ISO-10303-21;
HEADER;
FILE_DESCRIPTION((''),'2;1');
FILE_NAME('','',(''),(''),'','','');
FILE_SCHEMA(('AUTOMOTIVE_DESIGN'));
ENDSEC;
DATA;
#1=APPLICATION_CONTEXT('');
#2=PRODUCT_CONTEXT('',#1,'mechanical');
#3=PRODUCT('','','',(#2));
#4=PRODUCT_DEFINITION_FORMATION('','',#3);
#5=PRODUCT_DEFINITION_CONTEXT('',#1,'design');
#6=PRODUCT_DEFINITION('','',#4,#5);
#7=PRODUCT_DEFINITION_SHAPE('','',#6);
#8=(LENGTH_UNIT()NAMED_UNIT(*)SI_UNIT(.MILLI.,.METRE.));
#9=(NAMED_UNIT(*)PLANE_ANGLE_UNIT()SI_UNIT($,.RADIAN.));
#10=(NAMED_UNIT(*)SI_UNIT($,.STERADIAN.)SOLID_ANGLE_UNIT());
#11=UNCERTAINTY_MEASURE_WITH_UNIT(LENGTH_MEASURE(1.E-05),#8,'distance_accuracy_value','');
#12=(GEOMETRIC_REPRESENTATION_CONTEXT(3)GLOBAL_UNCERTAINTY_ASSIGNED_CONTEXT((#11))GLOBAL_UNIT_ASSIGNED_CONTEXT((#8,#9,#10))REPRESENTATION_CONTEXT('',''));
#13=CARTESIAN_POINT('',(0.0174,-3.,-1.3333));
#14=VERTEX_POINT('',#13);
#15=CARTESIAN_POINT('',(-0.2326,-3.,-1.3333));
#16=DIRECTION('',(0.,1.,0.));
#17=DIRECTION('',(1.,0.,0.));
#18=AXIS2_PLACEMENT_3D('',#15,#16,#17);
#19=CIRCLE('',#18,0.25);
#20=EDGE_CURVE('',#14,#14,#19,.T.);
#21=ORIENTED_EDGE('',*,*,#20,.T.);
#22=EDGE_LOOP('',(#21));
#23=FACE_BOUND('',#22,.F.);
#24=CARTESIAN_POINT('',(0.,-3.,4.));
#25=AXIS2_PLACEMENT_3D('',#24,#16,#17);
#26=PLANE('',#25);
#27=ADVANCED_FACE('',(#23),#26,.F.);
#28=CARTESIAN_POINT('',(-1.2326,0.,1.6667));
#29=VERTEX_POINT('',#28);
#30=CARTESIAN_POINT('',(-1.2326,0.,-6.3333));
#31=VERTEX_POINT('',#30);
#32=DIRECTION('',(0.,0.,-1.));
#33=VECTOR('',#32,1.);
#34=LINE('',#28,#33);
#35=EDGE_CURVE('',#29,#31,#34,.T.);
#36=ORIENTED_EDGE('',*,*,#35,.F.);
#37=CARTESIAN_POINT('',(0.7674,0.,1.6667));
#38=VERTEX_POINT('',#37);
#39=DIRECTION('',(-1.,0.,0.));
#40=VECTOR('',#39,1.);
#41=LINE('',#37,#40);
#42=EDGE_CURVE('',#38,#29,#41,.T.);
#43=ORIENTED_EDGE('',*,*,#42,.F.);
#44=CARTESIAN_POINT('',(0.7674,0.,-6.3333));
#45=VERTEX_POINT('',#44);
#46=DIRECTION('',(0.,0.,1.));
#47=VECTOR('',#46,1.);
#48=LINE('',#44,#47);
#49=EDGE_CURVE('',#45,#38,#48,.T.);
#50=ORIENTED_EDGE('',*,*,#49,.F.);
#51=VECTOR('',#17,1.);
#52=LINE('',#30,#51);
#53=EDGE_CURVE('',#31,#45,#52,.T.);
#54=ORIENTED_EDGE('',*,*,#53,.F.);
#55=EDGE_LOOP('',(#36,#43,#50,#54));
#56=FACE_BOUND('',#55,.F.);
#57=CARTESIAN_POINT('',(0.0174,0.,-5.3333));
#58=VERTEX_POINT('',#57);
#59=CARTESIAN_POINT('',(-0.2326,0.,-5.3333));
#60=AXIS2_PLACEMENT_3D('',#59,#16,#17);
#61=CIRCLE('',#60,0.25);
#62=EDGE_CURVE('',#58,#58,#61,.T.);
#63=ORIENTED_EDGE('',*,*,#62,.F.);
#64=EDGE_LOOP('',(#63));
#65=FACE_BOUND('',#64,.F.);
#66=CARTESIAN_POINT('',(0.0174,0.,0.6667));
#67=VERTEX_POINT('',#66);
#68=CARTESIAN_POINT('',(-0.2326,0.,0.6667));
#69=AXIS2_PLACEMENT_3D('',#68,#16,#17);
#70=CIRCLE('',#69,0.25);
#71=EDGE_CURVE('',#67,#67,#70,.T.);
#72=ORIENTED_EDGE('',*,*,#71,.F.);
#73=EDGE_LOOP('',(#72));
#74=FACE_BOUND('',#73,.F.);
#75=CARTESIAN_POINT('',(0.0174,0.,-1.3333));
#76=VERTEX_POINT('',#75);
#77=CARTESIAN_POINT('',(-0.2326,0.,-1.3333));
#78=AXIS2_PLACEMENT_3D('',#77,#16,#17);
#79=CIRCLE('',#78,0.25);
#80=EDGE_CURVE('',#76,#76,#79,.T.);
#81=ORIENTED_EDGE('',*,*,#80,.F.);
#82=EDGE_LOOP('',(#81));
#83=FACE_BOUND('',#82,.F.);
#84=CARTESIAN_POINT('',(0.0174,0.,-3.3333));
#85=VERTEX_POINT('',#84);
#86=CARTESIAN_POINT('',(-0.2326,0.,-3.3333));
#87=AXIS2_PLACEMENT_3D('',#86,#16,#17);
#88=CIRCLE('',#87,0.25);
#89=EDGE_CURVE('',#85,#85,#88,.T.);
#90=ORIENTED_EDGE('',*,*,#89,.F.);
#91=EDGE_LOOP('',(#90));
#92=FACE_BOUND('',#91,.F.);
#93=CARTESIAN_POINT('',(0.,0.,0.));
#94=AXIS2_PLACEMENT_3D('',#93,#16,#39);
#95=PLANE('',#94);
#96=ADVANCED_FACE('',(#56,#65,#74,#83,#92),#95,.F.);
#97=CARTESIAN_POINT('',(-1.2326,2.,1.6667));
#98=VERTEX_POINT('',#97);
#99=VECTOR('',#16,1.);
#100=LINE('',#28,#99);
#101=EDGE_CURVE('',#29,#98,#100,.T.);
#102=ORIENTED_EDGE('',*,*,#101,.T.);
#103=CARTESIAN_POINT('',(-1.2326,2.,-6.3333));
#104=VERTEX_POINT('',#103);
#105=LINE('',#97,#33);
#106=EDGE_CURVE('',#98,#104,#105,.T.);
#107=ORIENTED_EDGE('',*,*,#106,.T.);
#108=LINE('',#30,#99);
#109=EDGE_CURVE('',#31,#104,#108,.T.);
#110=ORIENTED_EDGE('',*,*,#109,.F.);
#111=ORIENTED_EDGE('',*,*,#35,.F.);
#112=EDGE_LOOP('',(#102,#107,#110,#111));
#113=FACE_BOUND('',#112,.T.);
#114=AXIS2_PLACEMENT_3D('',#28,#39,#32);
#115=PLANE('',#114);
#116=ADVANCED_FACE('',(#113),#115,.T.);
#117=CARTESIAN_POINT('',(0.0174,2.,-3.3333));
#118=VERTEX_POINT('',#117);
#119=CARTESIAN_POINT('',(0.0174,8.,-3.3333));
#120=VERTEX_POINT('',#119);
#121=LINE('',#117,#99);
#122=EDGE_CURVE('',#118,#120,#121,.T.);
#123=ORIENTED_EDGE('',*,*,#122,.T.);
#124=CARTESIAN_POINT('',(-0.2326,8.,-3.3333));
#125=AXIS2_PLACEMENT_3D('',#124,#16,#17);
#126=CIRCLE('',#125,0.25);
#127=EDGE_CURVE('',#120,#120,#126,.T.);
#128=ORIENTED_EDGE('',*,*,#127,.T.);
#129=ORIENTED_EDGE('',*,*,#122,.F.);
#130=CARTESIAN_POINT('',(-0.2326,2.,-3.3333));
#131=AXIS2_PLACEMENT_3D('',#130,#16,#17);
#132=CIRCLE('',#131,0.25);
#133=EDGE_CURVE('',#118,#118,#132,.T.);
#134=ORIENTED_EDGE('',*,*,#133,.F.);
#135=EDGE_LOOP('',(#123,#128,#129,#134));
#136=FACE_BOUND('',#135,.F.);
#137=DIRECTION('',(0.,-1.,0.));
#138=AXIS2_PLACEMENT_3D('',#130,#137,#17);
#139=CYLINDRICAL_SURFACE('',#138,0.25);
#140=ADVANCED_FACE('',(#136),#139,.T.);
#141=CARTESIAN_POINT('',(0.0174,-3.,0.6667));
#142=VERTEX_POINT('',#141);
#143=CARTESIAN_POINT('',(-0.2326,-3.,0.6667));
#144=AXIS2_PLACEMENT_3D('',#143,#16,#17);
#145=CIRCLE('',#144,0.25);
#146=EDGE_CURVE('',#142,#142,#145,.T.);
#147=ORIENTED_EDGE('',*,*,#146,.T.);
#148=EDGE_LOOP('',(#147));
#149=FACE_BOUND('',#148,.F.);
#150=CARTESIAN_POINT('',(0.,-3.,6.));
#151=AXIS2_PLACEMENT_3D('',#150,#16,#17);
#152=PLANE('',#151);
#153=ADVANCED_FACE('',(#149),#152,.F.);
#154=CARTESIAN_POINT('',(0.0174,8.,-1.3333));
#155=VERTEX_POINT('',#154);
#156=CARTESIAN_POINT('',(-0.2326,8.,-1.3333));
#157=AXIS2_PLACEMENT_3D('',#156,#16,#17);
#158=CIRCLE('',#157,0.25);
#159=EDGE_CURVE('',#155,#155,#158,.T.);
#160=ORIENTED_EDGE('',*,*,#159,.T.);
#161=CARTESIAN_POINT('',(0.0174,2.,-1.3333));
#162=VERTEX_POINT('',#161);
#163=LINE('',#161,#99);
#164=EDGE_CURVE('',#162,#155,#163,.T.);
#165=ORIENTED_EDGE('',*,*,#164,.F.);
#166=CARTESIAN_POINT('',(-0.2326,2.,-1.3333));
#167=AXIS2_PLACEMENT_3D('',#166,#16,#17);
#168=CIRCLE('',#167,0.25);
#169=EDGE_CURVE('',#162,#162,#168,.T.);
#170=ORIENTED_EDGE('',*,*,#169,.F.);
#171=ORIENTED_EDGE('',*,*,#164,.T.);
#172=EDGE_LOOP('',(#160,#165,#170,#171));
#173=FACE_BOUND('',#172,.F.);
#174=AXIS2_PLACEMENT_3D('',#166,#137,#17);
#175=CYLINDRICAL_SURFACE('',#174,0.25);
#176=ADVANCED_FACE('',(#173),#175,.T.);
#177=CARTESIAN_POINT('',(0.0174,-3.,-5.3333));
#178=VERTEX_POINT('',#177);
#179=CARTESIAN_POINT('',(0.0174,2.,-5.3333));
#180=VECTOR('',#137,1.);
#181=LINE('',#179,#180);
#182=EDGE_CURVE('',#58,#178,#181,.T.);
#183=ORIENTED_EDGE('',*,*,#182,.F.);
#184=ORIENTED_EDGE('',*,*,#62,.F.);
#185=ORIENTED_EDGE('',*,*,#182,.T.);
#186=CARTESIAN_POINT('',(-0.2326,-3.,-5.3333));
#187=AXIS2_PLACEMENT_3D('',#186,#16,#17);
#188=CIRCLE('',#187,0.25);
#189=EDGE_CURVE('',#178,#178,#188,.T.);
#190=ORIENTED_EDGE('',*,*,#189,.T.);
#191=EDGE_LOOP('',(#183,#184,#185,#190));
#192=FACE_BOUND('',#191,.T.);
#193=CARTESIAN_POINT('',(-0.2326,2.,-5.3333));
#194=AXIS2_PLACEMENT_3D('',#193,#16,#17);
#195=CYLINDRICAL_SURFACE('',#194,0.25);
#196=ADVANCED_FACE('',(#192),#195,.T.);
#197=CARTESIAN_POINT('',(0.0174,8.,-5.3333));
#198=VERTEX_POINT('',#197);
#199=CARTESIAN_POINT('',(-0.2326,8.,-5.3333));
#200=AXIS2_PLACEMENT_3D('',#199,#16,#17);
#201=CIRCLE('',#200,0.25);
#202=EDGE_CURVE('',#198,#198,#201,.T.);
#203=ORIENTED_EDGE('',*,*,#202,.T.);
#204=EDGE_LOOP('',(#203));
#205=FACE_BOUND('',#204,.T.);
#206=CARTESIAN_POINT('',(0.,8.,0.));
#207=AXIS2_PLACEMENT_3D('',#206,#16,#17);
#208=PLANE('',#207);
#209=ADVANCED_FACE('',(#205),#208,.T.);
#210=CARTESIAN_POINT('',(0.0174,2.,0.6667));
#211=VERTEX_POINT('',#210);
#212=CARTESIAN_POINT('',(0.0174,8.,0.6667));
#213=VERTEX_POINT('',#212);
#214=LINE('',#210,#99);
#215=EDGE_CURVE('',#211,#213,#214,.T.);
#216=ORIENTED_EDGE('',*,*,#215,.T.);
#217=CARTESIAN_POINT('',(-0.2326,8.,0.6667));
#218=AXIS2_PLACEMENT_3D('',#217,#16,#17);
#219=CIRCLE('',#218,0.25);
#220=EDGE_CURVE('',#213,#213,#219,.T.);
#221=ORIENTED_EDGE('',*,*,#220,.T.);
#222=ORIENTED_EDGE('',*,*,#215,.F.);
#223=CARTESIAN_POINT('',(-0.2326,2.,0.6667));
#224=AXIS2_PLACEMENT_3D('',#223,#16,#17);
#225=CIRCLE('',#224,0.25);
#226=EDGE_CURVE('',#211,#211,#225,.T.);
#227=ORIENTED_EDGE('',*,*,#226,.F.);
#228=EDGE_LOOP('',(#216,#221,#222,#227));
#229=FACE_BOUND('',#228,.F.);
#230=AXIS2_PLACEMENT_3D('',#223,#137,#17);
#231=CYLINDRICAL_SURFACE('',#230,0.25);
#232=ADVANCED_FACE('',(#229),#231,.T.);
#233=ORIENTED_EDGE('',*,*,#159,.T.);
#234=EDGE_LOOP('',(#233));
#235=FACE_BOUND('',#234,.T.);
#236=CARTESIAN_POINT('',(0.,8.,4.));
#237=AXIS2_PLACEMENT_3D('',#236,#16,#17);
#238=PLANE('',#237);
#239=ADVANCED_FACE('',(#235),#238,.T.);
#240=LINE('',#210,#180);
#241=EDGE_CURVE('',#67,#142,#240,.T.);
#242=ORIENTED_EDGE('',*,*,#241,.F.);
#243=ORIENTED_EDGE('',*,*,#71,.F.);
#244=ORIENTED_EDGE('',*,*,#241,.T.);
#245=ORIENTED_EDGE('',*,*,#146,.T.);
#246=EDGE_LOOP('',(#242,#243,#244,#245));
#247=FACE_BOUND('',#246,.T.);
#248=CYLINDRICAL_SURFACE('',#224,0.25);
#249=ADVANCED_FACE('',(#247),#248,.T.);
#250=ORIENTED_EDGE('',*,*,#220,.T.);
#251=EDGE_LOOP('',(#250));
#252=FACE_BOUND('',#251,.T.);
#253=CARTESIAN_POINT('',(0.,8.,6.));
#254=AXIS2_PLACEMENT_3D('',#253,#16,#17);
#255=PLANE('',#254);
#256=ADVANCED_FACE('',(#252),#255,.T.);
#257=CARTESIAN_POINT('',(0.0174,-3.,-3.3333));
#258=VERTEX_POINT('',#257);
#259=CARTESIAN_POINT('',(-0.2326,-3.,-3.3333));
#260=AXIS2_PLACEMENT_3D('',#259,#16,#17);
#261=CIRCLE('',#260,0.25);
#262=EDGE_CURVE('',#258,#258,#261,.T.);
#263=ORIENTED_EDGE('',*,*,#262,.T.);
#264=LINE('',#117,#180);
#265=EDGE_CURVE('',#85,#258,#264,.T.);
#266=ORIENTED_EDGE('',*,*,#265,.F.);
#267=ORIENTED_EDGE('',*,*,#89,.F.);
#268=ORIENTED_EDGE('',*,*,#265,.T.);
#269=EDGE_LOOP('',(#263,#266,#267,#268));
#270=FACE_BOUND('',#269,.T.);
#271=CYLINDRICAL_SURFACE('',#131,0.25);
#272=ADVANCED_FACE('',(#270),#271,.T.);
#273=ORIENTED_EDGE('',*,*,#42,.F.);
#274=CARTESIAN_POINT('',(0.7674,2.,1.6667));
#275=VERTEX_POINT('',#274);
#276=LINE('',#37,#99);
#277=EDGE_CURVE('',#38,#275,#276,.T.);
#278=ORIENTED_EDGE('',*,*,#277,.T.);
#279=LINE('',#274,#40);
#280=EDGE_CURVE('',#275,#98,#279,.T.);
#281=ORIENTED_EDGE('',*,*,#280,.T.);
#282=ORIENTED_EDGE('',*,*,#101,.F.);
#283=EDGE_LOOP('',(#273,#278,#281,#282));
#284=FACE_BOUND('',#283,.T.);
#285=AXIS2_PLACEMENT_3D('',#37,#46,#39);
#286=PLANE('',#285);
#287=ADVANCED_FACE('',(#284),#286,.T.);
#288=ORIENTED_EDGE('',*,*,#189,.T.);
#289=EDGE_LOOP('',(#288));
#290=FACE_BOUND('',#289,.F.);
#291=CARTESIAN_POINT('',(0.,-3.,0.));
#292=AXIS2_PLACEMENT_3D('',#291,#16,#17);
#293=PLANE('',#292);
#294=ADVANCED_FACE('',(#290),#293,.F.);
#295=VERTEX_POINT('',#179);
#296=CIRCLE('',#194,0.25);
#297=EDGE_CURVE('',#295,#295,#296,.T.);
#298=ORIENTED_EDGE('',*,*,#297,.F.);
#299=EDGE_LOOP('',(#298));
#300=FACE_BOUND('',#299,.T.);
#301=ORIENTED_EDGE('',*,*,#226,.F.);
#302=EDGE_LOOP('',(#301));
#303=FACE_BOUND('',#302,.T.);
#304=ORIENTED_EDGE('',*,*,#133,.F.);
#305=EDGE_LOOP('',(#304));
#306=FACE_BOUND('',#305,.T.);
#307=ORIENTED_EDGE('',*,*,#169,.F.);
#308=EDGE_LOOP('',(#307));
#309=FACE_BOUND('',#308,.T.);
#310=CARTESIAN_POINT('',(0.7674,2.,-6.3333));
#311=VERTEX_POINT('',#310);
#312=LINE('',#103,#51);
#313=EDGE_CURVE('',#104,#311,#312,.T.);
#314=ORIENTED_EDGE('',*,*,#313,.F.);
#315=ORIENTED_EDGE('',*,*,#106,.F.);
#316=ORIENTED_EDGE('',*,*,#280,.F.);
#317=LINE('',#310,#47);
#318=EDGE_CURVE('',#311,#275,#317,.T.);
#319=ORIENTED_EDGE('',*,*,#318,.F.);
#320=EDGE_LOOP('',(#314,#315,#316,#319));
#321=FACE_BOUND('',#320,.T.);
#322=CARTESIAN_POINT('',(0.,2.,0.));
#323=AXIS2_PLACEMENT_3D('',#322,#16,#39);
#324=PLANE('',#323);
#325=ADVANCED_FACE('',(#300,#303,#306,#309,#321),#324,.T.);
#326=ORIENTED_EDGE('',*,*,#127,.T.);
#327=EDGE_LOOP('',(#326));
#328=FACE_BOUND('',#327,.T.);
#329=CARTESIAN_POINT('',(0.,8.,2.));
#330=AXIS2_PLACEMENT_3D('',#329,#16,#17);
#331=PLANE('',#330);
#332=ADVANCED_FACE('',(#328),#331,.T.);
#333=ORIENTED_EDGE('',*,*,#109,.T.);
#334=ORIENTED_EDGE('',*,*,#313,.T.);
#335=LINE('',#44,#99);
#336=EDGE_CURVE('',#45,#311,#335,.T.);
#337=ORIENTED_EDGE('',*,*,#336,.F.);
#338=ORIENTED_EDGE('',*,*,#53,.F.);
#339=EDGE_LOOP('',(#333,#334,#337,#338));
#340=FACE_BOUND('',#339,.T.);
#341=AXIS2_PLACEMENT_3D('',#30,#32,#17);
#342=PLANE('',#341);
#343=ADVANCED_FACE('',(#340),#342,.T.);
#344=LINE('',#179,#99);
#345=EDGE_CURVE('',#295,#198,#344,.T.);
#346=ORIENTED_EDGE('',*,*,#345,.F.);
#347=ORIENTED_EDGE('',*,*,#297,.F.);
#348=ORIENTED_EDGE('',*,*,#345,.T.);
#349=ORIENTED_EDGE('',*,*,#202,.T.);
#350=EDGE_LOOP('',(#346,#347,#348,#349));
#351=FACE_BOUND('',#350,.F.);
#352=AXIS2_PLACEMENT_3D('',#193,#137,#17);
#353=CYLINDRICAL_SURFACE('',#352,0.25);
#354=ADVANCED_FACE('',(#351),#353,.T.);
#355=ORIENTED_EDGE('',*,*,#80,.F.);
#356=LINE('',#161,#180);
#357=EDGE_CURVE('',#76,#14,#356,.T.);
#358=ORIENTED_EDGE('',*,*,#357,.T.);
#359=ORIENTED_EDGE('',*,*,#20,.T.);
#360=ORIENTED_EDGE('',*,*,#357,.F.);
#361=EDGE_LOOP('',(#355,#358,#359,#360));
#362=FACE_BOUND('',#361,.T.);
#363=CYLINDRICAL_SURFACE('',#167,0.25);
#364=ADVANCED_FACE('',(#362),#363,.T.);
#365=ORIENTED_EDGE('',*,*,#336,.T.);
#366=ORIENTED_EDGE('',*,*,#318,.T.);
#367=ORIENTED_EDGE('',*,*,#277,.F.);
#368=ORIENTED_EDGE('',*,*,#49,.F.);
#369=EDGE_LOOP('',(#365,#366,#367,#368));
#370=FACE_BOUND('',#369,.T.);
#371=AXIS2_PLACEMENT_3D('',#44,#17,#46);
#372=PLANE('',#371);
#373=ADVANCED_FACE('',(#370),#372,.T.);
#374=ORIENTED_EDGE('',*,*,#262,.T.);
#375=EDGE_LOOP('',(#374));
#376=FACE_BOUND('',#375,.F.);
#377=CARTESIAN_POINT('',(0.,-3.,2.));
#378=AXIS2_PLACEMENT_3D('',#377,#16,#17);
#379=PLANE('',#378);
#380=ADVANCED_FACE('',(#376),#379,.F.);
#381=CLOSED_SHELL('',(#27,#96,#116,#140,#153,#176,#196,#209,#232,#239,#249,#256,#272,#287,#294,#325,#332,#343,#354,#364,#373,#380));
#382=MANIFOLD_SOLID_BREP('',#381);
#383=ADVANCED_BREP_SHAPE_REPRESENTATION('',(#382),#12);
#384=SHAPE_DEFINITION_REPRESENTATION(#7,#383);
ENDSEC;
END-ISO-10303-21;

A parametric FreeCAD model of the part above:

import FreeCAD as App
import Part
import Sketcher


def add_polygon(sketch, points):
    """Adds a closed chain of lines whose ends are joined by coincident constraints."""
    first, n = sketch.GeometryCount, len(points)
    for a, b in zip(points, points[1:] + points[:1]):
        sketch.addGeometry(Part.LineSegment(App.Vector(*a, 0), App.Vector(*b, 0)), False)
    for i in range(n):
        sketch.addConstraint(Sketcher.Constraint("Coincident", first + i, 2, first + (i + 1) % n, 1))

doc = App.newDocument("Part")
body = doc.addObject("PartDesign::Body", "Body")

# Sketch on XZ plane
sketch1 = body.newObject("Sketcher::SketchObject", "Sketch")
sketch1.AttachmentSupport = (doc.getObject("XZ_Plane"), [""])
sketch1.MapMode = "FlatFace"
add_polygon(sketch1, [(-1.2, 1.7), (0.8, 1.7), (0.8, -6.3), (-1.2, -6.3)])  # lines 0-3
sketch1.addConstraint(Sketcher.Constraint("Horizontal", 0))
sketch1.addConstraint(Sketcher.Constraint("Vertical", 1))
sketch1.addConstraint(Sketcher.Constraint("Horizontal", 2))
sketch1.addConstraint(Sketcher.Constraint("Vertical", 3))
sketch1.addConstraint(Sketcher.Constraint("DistanceX", 0, 1, 0, 2, 2.0))
sketch1.addConstraint(Sketcher.Constraint("DistanceY", 1, 2, 1, 1, 8.0))
sketch1.addConstraint(Sketcher.Constraint("DistanceX", -1, 1, 0, 2, 0.7674))
sketch1.addConstraint(Sketcher.Constraint("DistanceY", -1, 1, 0, 2, 1.6667))
pad1 = body.newObject("PartDesign::Pad", "Pad")
pad1.Profile = sketch1
pad1.Length = 2
pad1.Reversed = True

# Sketch on XZ plane
sketch2 = body.newObject("Sketcher::SketchObject", "Sketch001")
sketch2.AttachmentSupport = (doc.getObject("XZ_Plane"), [""])
sketch2.MapMode = "FlatFace"
sketch2.AttachmentOffset = App.Placement(App.Vector(0, 0, -2), App.Rotation())
sketch2.addGeometry(Part.Circle(App.Vector(-0.23, -5.33, 0), App.Vector(0, 0, 1), 0.25), False)
sketch2.addConstraint(Sketcher.Constraint("Diameter", 0, 0.5))
sketch2.addConstraint(Sketcher.Constraint("DistanceX", 0, 3, -1, 1, 0.2326))
sketch2.addConstraint(Sketcher.Constraint("DistanceY", 0, 3, -1, 1, 5.3333))
pad2 = body.newObject("PartDesign::Pad", "Pad001")
pad2.Profile = sketch2
pad2.Type = "TwoLengths"
pad2.Length = 6
pad2.Length2 = 5
pad2.Reversed = True
doc.recompute()

linearpattern = body.newObject("PartDesign::LinearPattern", "LinearPattern")
linearpattern.Originals = [pad2]
linearpattern.Direction = (doc.getObject("Z_Axis"), [""])
linearpattern.Mode = "offset"
linearpattern.Offset = 2
linearpattern.Occurrences = 4
body.Tip = linearpattern

doc.recompute()
